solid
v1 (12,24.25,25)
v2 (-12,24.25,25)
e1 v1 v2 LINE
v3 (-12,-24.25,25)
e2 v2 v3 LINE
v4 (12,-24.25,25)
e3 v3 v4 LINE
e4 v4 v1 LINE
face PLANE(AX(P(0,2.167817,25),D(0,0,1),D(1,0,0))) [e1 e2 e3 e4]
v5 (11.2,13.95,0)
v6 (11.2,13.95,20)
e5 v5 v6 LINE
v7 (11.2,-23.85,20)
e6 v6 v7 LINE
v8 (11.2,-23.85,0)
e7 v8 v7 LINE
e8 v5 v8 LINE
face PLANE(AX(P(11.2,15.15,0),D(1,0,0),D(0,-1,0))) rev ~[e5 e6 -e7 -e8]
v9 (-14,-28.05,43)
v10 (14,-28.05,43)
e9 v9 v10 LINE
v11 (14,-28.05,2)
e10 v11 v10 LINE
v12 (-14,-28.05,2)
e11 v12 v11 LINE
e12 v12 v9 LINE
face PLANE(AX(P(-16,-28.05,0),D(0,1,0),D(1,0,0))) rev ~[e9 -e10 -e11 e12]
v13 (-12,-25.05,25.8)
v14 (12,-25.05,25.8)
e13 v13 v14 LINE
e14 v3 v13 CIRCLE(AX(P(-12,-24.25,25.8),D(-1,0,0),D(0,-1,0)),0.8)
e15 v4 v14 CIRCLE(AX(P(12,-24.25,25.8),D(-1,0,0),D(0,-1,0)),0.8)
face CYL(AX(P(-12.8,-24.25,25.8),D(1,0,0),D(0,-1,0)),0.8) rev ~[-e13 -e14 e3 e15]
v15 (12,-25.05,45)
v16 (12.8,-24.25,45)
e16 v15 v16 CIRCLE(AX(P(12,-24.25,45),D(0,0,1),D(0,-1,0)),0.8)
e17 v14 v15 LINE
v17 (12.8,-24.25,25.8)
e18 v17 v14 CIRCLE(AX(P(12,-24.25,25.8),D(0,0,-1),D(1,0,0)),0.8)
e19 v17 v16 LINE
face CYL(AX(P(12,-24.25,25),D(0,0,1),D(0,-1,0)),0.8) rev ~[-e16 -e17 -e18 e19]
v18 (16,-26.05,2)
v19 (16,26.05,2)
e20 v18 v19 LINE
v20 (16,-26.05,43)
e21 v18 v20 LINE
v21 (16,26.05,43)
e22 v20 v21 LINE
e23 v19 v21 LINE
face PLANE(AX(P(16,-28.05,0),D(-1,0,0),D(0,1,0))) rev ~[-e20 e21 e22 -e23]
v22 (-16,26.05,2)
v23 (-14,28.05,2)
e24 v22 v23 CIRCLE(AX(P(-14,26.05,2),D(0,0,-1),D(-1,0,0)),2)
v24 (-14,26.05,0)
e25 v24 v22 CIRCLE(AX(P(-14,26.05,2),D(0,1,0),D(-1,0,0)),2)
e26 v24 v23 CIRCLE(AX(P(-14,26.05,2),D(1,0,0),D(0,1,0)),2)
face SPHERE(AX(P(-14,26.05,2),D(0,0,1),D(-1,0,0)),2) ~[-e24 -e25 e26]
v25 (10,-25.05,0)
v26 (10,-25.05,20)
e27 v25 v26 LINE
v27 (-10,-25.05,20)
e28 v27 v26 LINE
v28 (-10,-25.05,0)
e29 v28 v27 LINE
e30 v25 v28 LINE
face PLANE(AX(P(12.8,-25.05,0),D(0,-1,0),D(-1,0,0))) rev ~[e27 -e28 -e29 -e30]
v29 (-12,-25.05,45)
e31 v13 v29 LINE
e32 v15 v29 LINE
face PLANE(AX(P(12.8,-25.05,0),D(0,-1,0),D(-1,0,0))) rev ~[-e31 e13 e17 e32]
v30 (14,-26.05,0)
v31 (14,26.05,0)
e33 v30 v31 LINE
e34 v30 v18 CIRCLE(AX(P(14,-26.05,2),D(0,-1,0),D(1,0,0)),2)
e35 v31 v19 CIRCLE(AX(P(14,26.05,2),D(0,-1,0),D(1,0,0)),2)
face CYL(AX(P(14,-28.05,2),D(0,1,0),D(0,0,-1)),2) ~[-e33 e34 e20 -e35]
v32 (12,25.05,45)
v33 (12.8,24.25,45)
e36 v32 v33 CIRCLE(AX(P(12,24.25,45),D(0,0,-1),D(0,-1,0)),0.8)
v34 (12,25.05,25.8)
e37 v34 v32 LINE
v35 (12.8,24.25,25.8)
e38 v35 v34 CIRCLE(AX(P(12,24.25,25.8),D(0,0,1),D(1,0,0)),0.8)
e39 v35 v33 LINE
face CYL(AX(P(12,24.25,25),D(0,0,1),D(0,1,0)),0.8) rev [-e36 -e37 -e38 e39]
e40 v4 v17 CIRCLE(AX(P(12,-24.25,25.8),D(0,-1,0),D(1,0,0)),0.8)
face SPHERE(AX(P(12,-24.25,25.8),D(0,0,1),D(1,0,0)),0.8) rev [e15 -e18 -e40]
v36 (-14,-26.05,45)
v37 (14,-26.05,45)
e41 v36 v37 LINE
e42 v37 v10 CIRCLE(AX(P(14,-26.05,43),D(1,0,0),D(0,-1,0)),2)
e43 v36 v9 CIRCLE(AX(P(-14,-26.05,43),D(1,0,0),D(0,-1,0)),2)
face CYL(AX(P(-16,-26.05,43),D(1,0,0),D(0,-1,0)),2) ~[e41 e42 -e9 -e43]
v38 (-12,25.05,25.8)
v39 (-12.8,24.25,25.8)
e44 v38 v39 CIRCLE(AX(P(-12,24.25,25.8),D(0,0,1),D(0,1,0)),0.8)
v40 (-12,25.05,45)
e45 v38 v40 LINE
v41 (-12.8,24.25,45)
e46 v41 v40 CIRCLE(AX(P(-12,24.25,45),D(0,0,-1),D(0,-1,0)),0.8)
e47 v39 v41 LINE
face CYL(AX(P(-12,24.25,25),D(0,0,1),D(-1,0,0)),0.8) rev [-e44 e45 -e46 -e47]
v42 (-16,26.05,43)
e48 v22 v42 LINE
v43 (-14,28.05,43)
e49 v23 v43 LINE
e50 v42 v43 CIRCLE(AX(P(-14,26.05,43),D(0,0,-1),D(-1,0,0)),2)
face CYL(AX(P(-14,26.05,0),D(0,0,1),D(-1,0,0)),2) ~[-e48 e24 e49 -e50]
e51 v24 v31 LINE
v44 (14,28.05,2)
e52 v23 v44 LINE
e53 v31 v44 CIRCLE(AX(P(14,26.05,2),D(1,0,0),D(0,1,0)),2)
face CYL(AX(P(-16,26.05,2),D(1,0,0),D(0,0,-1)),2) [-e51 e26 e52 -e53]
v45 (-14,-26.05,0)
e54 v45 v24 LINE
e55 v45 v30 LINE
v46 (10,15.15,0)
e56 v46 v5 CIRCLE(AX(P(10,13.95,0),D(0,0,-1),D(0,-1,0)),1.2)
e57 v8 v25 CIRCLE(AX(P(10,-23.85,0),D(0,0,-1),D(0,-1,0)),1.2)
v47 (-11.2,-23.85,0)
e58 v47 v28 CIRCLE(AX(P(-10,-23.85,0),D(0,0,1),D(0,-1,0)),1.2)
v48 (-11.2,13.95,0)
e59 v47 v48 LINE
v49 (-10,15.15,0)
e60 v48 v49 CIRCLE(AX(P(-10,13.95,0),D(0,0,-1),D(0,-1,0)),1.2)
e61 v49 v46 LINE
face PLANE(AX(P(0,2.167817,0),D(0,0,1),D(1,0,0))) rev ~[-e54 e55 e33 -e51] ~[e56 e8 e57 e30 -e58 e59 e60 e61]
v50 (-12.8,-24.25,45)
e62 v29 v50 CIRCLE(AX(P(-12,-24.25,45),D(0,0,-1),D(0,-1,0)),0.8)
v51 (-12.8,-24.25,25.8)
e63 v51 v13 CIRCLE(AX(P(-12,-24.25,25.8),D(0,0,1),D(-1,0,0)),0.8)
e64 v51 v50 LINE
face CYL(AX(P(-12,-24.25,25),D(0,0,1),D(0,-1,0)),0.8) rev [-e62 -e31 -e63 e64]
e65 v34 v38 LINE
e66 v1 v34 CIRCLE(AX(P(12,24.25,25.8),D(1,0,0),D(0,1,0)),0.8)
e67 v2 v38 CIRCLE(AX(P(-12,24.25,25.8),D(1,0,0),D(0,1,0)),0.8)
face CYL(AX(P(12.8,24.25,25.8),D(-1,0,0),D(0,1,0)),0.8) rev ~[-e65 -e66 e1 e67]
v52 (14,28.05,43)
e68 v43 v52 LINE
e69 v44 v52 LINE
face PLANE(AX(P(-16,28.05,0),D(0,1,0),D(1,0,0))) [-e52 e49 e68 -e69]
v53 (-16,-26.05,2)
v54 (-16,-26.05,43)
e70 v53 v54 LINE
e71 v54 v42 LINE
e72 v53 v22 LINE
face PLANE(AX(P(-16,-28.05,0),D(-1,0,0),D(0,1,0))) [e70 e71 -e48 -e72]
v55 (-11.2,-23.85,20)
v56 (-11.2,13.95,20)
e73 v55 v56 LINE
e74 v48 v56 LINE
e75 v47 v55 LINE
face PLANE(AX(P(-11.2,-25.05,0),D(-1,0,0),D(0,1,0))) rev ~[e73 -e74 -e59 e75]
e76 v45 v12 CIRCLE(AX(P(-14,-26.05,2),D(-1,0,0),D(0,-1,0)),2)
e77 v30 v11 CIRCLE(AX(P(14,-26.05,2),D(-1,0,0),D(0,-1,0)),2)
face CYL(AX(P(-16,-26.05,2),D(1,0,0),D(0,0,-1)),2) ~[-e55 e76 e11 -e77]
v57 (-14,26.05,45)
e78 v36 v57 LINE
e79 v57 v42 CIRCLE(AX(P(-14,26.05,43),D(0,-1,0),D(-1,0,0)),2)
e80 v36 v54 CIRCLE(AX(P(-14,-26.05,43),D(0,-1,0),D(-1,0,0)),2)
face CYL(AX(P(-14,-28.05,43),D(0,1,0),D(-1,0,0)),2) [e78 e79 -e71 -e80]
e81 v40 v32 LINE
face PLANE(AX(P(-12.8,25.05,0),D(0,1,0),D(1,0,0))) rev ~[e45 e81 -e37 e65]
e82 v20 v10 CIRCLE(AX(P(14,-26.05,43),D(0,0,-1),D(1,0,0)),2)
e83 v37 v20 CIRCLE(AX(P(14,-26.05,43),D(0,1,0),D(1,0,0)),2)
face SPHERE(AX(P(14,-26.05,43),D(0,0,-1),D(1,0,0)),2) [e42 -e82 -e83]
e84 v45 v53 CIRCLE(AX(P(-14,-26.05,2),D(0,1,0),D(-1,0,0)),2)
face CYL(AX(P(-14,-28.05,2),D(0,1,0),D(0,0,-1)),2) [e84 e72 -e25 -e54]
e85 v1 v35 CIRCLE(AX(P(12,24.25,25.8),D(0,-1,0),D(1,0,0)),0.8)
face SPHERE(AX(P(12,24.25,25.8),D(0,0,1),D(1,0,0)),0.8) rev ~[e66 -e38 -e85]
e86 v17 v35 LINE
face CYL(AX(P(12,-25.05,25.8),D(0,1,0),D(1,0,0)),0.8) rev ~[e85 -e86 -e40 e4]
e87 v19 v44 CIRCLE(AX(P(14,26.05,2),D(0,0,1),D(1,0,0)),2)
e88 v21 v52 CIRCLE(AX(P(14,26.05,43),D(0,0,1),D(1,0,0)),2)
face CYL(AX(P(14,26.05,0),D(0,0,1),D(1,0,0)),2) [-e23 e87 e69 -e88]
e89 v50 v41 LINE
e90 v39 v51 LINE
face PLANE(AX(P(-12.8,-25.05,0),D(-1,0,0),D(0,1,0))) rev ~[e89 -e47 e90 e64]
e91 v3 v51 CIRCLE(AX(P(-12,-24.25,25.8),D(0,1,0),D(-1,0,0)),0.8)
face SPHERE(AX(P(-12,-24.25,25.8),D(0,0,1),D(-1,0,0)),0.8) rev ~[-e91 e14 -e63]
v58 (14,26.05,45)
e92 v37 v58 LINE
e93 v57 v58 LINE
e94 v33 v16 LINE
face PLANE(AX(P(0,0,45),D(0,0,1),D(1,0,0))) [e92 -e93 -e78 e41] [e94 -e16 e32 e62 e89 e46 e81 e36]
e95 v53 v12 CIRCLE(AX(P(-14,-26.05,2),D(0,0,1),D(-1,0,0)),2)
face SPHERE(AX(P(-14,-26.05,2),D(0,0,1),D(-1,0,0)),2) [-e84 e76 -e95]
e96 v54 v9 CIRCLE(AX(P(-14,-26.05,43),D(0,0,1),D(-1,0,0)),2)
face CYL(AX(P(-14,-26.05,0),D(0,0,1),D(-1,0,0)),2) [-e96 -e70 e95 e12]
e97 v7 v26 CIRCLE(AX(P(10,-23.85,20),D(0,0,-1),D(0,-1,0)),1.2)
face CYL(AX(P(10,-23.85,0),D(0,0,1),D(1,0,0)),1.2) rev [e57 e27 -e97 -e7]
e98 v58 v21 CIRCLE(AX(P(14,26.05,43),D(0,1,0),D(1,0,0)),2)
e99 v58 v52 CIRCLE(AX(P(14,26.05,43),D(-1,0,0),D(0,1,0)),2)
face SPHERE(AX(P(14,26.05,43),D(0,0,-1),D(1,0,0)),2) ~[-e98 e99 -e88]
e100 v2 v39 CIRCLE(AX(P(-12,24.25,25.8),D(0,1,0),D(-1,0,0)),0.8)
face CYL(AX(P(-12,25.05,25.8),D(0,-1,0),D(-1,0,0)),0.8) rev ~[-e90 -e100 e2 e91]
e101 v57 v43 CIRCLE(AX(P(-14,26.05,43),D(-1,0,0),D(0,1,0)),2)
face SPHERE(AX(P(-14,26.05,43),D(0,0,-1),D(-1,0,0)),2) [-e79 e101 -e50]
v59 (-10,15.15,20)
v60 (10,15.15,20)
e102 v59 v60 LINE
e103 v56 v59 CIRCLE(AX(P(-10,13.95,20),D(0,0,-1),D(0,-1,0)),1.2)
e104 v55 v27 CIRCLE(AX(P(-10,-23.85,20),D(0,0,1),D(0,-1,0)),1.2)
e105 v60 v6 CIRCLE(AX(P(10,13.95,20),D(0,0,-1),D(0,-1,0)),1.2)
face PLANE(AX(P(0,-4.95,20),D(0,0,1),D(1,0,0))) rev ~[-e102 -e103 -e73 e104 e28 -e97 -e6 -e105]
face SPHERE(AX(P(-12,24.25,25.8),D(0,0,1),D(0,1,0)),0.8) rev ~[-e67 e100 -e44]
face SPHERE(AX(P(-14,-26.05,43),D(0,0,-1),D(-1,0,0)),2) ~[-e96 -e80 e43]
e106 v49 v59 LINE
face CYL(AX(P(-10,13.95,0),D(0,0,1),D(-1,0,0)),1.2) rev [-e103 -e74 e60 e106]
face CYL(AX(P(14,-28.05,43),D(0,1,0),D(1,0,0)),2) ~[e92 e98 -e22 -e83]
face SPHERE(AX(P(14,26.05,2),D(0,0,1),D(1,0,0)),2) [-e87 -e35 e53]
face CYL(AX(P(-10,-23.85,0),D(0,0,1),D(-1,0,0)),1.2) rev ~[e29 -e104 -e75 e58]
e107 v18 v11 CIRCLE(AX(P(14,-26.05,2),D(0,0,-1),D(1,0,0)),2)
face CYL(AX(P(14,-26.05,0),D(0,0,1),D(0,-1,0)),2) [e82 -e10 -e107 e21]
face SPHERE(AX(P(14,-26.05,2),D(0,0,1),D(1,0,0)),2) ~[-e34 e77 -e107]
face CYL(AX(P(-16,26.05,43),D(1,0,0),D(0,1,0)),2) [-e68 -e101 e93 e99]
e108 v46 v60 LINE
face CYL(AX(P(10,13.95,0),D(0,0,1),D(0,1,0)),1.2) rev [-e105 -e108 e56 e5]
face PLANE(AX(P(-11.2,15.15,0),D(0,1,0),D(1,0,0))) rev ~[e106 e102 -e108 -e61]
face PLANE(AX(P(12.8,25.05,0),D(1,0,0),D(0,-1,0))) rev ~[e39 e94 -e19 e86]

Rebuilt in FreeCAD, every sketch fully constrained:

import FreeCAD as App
import Part
import Sketcher
from FreeCAD import Vector
Q = App.Units.Quantity


def edges_at(feature, points):
    """Names of the edges that pass closest to the given points."""
    edges = feature.Shape.Edges
    near = lambda p: min(range(len(edges)), key=lambda i: edges[i].distToShape(Part.Vertex(*p))[0])
    return sorted({f"Edge{near(p) + 1}" for p in points})


def add_polygon(sketch, points):
    """Adds a closed chain of lines whose ends are joined by coincident constraints."""
    first, n = sketch.GeometryCount, len(points)
    for a, b in zip(points, points[1:] + points[:1]):
        sketch.addGeometry(Part.LineSegment(App.Vector(*a, 0), App.Vector(*b, 0)), False)
    for i in range(n):
        sketch.addConstraint(Sketcher.Constraint("Coincident", first + i, 2, first + (i + 1) % n, 1))

doc = App.newDocument("Part")
params = doc.addObject("Spreadsheet::Sheet", "Params")
for row, (alias, value) in enumerate([
    ("sketch1_width", "25.6 mm"),
    ("sketch1_height", "50.1 mm"),
    ("pad1_length", "25 mm"),
    ("sketch2_width", "25.6 mm"),
    ("sketch2_height", "50.1 mm"),
    ("pocket1_length", "20 mm"),
    ("sketch3_width", "32 mm"),
    ("sketch3_width2", "25.6 mm"),
    ("sketch3_height", "56.1 mm"),
    ("sketch3_height2", "50.1 mm"),
    ("pad2_length", "45 mm"),
    ("sketch4_width", "22.4 mm"),
    ("sketch4_width2", "1.6 mm"),
    ("sketch4_height", "40.2 mm"),
    ("sketch4_height2", "50.1 mm"),
    ("pad3_length", "20 mm"),
    ("fillet_radius", "2 mm"),
    ("fillet2_radius", "0.8 mm"),
    ("fillet3_radius", "1.2 mm"),
], start=1):
    params.set(f"A{row}", alias)
    params.set(f"B{row}", "=" + value)
    params.setAlias(f"B{row}", alias)

body = doc.addObject("PartDesign::Body", "Body")

# Sketch on XY plane
sketch1 = doc.addObject("Sketcher::SketchObject", "Sketch")
body.addObject(sketch1)
sketch1.AttachmentSupport = (doc.XY_Plane, [""])
sketch1.MapMode = "FlatFace"
add_polygon(sketch1, [(13, -25), (13, 25), (-13, 25), (-13, -25)])  # lines 0-3
sketch1.addConstraint([
    Sketcher.Constraint("Vertical", 0),
    Sketcher.Constraint("Horizontal", 1),
    Sketcher.Constraint("Vertical", 2),
    Sketcher.Constraint("Horizontal", 3),
    Sketcher.Constraint("Symmetric", 0, 2, 2, 2, -1, 1),
    Sketcher.Constraint("DistanceX", 1, 2, 1, 1, Q("25.6 mm")),
    Sketcher.Constraint("DistanceY", 0, 1, 0, 2, Q("50.1 mm")),
])
sketch1.setExpression("Constraints[9]", "Params.sketch1_width")
sketch1.setExpression("Constraints[10]", "Params.sketch1_height")
pad1 = doc.addObject("PartDesign::Pad", "Pad")
body.addObject(pad1)
pad1.Profile = sketch1
pad1.setExpression("Length", "Params.pad1_length")

# Sketch on XY plane
sketch2 = doc.addObject("Sketcher::SketchObject", "Sketch001")
body.addObject(sketch2)
sketch2.AttachmentSupport = (doc.XY_Plane, [""])
sketch2.MapMode = "FlatFace"
add_polygon(sketch2, [(13, -25), (13, 25), (-13, 25), (-13, -25)])  # lines 0-3
sketch2.addConstraint([
    Sketcher.Constraint("Vertical", 0),
    Sketcher.Constraint("Horizontal", 1),
    Sketcher.Constraint("Vertical", 2),
    Sketcher.Constraint("Horizontal", 3),
    Sketcher.Constraint("Symmetric", 0, 2, 2, 2, -1, 1),
    Sketcher.Constraint("DistanceX", 1, 2, 1, 1, Q("25.6 mm")),
    Sketcher.Constraint("DistanceY", 0, 1, 0, 2, Q("50.1 mm")),
])
sketch2.setExpression("Constraints[9]", "Params.sketch2_width")
sketch2.setExpression("Constraints[10]", "Params.sketch2_height")
pocket1 = doc.addObject("PartDesign::Pocket", "Pocket")
body.addObject(pocket1)
pocket1.Profile = sketch2
pocket1.setExpression("Length", "Params.pocket1_length")
pocket1.Reversed = True

# Sketch on XY plane
sketch3 = doc.addObject("Sketcher::SketchObject", "Sketch002")
body.addObject(sketch3)
sketch3.AttachmentSupport = (doc.XY_Plane, [""])
sketch3.MapMode = "FlatFace"
add_polygon(sketch3, [(-16, 28), (-16, -28), (16, -28), (16, 28)])  # lines 0-3
add_polygon(sketch3, [(13, -25), (-13, -25), (-13, 25), (13, 25)])  # lines 4-7
sketch3.addConstraint([
    Sketcher.Constraint("Vertical", 0),
    Sketcher.Constraint("Horizontal", 1),
    Sketcher.Constraint("Vertical", 2),
    Sketcher.Constraint("Horizontal", 3),
    Sketcher.Constraint("Horizontal", 4),
    Sketcher.Constraint("Vertical", 5),
    Sketcher.Constraint("Horizontal", 6),
    Sketcher.Constraint("Vertical", 7),
    Sketcher.Constraint("Symmetric", 0, 2, 2, 2, -1, 1),
    Sketcher.Constraint("Symmetric", 4, 2, 6, 2, -1, 1),
    Sketcher.Constraint("DistanceX", 1, 1, 1, 2, Q("32 mm")),
    Sketcher.Constraint("DistanceX", 4, 2, 4, 1, Q("25.6 mm")),
    Sketcher.Constraint("DistanceY", 0, 2, 0, 1, Q("56.1 mm")),
    Sketcher.Constraint("DistanceY", 5, 1, 5, 2, Q("50.1 mm")),
])
sketch3.setExpression("Constraints[18]", "Params.sketch3_width")
sketch3.setExpression("Constraints[19]", "Params.sketch3_width2")
sketch3.setExpression("Constraints[20]", "Params.sketch3_height")
sketch3.setExpression("Constraints[21]", "Params.sketch3_height2")
pad2 = doc.addObject("PartDesign::Pad", "Pad001")
body.addObject(pad2)
pad2.Profile = sketch3
pad2.setExpression("Length", "Params.pad2_length")

# Sketch on XY plane
sketch4 = doc.addObject("Sketcher::SketchObject", "Sketch003")
body.addObject(sketch4)
sketch4.AttachmentSupport = (doc.XY_Plane, [""])
sketch4.MapMode = "FlatFace"
add_polygon(sketch4, [(-11.2, -25.1), (-11.2, 15.2), (11.2, 15.2), (11.2, -25.1), (12.8, -25.1), (12.8, 25.1), (-12.8, 25.1), (-12.8, -25.1)])  # lines 0-7
sketch4.addConstraint([
    Sketcher.Constraint("Vertical", 0),
    Sketcher.Constraint("Horizontal", 1),
    Sketcher.Constraint("Vertical", 2),
    Sketcher.Constraint("Horizontal", 3),
    Sketcher.Constraint("Vertical", 4),
    Sketcher.Constraint("Horizontal", 5),
    Sketcher.Constraint("Vertical", 6),
    Sketcher.Constraint("Horizontal", 7),
    Sketcher.Constraint("Symmetric", 3, 2, 5, 2, -1, 1),
    Sketcher.Constraint("Symmetric", 2, 2, 7, 2, -2),
    Sketcher.Constraint("DistanceX", 1, 1, 1, 2, Q("22.4 mm")),
    Sketcher.Constraint("DistanceX", 3, 1, 3, 2, Q("1.6 mm")),
    Sketcher.Constraint("DistanceY", 0, 1, 0, 2, Q("40.2 mm")),
    Sketcher.Constraint("DistanceY", 4, 1, 4, 2, Q("50.1 mm")),
])
sketch4.setExpression("Constraints[18]", "Params.sketch4_width")
sketch4.setExpression("Constraints[19]", "Params.sketch4_width2")
sketch4.setExpression("Constraints[20]", "Params.sketch4_height")
sketch4.setExpression("Constraints[21]", "Params.sketch4_height2")
pad3 = doc.addObject("PartDesign::Pad", "Pad002")
body.addObject(pad3)
pad3.Profile = sketch4
pad3.setExpression("Length", "Params.pad3_length")
doc.recompute()

fillet = doc.addObject("PartDesign::Fillet", "Fillet")
body.addObject(fillet)
fillet.Base = (pad3, edges_at(pad3, [
    (16, -28.05, 22.5),
    (16, 28.05, 22.5),
    (16, 0, 0),
    (16, 0, 45),
    (-16, 28.05, 22.5),
    (-16, -28.05, 22.5),
    (-16, 0, 0),
    (-16, 0, 45),
    (0, 28.05, 0),
    (0, 28.05, 45),
    (0, -28.05, 0),
    (0, -28.05, 45),
]))
fillet.setExpression("Radius", "Params.fillet_radius")
doc.recompute()

fillet2 = doc.addObject("PartDesign::Fillet", "Fillet001")
body.addObject(fillet2)
fillet2.Base = (fillet, edges_at(fillet, [
    (12.8, 25.05, 35),
    (12.8, -25.05, 35),
    (-12.8, -25.05, 35),
    (-12.8, 25.05, 35),
    (12.8, 0, 25),
    (0, 25.05, 25),
    (-12.8, 0, 25),
    (0, -25.05, 25),
]))
fillet2.setExpression("Radius", "Params.fillet2_radius")
doc.recompute()

fillet3 = doc.addObject("PartDesign::Fillet", "Fillet002")
body.addObject(fillet3)
fillet3.Base = (fillet2, edges_at(fillet2, [
    (-11.2, -25.05, 10),
    (11.2, -25.05, 10),
    (11.2, 15.15, 10),
    (-11.2, 15.15, 10),
]))
fillet3.setExpression("Radius", "Params.fillet3_radius")

doc.recompute()
